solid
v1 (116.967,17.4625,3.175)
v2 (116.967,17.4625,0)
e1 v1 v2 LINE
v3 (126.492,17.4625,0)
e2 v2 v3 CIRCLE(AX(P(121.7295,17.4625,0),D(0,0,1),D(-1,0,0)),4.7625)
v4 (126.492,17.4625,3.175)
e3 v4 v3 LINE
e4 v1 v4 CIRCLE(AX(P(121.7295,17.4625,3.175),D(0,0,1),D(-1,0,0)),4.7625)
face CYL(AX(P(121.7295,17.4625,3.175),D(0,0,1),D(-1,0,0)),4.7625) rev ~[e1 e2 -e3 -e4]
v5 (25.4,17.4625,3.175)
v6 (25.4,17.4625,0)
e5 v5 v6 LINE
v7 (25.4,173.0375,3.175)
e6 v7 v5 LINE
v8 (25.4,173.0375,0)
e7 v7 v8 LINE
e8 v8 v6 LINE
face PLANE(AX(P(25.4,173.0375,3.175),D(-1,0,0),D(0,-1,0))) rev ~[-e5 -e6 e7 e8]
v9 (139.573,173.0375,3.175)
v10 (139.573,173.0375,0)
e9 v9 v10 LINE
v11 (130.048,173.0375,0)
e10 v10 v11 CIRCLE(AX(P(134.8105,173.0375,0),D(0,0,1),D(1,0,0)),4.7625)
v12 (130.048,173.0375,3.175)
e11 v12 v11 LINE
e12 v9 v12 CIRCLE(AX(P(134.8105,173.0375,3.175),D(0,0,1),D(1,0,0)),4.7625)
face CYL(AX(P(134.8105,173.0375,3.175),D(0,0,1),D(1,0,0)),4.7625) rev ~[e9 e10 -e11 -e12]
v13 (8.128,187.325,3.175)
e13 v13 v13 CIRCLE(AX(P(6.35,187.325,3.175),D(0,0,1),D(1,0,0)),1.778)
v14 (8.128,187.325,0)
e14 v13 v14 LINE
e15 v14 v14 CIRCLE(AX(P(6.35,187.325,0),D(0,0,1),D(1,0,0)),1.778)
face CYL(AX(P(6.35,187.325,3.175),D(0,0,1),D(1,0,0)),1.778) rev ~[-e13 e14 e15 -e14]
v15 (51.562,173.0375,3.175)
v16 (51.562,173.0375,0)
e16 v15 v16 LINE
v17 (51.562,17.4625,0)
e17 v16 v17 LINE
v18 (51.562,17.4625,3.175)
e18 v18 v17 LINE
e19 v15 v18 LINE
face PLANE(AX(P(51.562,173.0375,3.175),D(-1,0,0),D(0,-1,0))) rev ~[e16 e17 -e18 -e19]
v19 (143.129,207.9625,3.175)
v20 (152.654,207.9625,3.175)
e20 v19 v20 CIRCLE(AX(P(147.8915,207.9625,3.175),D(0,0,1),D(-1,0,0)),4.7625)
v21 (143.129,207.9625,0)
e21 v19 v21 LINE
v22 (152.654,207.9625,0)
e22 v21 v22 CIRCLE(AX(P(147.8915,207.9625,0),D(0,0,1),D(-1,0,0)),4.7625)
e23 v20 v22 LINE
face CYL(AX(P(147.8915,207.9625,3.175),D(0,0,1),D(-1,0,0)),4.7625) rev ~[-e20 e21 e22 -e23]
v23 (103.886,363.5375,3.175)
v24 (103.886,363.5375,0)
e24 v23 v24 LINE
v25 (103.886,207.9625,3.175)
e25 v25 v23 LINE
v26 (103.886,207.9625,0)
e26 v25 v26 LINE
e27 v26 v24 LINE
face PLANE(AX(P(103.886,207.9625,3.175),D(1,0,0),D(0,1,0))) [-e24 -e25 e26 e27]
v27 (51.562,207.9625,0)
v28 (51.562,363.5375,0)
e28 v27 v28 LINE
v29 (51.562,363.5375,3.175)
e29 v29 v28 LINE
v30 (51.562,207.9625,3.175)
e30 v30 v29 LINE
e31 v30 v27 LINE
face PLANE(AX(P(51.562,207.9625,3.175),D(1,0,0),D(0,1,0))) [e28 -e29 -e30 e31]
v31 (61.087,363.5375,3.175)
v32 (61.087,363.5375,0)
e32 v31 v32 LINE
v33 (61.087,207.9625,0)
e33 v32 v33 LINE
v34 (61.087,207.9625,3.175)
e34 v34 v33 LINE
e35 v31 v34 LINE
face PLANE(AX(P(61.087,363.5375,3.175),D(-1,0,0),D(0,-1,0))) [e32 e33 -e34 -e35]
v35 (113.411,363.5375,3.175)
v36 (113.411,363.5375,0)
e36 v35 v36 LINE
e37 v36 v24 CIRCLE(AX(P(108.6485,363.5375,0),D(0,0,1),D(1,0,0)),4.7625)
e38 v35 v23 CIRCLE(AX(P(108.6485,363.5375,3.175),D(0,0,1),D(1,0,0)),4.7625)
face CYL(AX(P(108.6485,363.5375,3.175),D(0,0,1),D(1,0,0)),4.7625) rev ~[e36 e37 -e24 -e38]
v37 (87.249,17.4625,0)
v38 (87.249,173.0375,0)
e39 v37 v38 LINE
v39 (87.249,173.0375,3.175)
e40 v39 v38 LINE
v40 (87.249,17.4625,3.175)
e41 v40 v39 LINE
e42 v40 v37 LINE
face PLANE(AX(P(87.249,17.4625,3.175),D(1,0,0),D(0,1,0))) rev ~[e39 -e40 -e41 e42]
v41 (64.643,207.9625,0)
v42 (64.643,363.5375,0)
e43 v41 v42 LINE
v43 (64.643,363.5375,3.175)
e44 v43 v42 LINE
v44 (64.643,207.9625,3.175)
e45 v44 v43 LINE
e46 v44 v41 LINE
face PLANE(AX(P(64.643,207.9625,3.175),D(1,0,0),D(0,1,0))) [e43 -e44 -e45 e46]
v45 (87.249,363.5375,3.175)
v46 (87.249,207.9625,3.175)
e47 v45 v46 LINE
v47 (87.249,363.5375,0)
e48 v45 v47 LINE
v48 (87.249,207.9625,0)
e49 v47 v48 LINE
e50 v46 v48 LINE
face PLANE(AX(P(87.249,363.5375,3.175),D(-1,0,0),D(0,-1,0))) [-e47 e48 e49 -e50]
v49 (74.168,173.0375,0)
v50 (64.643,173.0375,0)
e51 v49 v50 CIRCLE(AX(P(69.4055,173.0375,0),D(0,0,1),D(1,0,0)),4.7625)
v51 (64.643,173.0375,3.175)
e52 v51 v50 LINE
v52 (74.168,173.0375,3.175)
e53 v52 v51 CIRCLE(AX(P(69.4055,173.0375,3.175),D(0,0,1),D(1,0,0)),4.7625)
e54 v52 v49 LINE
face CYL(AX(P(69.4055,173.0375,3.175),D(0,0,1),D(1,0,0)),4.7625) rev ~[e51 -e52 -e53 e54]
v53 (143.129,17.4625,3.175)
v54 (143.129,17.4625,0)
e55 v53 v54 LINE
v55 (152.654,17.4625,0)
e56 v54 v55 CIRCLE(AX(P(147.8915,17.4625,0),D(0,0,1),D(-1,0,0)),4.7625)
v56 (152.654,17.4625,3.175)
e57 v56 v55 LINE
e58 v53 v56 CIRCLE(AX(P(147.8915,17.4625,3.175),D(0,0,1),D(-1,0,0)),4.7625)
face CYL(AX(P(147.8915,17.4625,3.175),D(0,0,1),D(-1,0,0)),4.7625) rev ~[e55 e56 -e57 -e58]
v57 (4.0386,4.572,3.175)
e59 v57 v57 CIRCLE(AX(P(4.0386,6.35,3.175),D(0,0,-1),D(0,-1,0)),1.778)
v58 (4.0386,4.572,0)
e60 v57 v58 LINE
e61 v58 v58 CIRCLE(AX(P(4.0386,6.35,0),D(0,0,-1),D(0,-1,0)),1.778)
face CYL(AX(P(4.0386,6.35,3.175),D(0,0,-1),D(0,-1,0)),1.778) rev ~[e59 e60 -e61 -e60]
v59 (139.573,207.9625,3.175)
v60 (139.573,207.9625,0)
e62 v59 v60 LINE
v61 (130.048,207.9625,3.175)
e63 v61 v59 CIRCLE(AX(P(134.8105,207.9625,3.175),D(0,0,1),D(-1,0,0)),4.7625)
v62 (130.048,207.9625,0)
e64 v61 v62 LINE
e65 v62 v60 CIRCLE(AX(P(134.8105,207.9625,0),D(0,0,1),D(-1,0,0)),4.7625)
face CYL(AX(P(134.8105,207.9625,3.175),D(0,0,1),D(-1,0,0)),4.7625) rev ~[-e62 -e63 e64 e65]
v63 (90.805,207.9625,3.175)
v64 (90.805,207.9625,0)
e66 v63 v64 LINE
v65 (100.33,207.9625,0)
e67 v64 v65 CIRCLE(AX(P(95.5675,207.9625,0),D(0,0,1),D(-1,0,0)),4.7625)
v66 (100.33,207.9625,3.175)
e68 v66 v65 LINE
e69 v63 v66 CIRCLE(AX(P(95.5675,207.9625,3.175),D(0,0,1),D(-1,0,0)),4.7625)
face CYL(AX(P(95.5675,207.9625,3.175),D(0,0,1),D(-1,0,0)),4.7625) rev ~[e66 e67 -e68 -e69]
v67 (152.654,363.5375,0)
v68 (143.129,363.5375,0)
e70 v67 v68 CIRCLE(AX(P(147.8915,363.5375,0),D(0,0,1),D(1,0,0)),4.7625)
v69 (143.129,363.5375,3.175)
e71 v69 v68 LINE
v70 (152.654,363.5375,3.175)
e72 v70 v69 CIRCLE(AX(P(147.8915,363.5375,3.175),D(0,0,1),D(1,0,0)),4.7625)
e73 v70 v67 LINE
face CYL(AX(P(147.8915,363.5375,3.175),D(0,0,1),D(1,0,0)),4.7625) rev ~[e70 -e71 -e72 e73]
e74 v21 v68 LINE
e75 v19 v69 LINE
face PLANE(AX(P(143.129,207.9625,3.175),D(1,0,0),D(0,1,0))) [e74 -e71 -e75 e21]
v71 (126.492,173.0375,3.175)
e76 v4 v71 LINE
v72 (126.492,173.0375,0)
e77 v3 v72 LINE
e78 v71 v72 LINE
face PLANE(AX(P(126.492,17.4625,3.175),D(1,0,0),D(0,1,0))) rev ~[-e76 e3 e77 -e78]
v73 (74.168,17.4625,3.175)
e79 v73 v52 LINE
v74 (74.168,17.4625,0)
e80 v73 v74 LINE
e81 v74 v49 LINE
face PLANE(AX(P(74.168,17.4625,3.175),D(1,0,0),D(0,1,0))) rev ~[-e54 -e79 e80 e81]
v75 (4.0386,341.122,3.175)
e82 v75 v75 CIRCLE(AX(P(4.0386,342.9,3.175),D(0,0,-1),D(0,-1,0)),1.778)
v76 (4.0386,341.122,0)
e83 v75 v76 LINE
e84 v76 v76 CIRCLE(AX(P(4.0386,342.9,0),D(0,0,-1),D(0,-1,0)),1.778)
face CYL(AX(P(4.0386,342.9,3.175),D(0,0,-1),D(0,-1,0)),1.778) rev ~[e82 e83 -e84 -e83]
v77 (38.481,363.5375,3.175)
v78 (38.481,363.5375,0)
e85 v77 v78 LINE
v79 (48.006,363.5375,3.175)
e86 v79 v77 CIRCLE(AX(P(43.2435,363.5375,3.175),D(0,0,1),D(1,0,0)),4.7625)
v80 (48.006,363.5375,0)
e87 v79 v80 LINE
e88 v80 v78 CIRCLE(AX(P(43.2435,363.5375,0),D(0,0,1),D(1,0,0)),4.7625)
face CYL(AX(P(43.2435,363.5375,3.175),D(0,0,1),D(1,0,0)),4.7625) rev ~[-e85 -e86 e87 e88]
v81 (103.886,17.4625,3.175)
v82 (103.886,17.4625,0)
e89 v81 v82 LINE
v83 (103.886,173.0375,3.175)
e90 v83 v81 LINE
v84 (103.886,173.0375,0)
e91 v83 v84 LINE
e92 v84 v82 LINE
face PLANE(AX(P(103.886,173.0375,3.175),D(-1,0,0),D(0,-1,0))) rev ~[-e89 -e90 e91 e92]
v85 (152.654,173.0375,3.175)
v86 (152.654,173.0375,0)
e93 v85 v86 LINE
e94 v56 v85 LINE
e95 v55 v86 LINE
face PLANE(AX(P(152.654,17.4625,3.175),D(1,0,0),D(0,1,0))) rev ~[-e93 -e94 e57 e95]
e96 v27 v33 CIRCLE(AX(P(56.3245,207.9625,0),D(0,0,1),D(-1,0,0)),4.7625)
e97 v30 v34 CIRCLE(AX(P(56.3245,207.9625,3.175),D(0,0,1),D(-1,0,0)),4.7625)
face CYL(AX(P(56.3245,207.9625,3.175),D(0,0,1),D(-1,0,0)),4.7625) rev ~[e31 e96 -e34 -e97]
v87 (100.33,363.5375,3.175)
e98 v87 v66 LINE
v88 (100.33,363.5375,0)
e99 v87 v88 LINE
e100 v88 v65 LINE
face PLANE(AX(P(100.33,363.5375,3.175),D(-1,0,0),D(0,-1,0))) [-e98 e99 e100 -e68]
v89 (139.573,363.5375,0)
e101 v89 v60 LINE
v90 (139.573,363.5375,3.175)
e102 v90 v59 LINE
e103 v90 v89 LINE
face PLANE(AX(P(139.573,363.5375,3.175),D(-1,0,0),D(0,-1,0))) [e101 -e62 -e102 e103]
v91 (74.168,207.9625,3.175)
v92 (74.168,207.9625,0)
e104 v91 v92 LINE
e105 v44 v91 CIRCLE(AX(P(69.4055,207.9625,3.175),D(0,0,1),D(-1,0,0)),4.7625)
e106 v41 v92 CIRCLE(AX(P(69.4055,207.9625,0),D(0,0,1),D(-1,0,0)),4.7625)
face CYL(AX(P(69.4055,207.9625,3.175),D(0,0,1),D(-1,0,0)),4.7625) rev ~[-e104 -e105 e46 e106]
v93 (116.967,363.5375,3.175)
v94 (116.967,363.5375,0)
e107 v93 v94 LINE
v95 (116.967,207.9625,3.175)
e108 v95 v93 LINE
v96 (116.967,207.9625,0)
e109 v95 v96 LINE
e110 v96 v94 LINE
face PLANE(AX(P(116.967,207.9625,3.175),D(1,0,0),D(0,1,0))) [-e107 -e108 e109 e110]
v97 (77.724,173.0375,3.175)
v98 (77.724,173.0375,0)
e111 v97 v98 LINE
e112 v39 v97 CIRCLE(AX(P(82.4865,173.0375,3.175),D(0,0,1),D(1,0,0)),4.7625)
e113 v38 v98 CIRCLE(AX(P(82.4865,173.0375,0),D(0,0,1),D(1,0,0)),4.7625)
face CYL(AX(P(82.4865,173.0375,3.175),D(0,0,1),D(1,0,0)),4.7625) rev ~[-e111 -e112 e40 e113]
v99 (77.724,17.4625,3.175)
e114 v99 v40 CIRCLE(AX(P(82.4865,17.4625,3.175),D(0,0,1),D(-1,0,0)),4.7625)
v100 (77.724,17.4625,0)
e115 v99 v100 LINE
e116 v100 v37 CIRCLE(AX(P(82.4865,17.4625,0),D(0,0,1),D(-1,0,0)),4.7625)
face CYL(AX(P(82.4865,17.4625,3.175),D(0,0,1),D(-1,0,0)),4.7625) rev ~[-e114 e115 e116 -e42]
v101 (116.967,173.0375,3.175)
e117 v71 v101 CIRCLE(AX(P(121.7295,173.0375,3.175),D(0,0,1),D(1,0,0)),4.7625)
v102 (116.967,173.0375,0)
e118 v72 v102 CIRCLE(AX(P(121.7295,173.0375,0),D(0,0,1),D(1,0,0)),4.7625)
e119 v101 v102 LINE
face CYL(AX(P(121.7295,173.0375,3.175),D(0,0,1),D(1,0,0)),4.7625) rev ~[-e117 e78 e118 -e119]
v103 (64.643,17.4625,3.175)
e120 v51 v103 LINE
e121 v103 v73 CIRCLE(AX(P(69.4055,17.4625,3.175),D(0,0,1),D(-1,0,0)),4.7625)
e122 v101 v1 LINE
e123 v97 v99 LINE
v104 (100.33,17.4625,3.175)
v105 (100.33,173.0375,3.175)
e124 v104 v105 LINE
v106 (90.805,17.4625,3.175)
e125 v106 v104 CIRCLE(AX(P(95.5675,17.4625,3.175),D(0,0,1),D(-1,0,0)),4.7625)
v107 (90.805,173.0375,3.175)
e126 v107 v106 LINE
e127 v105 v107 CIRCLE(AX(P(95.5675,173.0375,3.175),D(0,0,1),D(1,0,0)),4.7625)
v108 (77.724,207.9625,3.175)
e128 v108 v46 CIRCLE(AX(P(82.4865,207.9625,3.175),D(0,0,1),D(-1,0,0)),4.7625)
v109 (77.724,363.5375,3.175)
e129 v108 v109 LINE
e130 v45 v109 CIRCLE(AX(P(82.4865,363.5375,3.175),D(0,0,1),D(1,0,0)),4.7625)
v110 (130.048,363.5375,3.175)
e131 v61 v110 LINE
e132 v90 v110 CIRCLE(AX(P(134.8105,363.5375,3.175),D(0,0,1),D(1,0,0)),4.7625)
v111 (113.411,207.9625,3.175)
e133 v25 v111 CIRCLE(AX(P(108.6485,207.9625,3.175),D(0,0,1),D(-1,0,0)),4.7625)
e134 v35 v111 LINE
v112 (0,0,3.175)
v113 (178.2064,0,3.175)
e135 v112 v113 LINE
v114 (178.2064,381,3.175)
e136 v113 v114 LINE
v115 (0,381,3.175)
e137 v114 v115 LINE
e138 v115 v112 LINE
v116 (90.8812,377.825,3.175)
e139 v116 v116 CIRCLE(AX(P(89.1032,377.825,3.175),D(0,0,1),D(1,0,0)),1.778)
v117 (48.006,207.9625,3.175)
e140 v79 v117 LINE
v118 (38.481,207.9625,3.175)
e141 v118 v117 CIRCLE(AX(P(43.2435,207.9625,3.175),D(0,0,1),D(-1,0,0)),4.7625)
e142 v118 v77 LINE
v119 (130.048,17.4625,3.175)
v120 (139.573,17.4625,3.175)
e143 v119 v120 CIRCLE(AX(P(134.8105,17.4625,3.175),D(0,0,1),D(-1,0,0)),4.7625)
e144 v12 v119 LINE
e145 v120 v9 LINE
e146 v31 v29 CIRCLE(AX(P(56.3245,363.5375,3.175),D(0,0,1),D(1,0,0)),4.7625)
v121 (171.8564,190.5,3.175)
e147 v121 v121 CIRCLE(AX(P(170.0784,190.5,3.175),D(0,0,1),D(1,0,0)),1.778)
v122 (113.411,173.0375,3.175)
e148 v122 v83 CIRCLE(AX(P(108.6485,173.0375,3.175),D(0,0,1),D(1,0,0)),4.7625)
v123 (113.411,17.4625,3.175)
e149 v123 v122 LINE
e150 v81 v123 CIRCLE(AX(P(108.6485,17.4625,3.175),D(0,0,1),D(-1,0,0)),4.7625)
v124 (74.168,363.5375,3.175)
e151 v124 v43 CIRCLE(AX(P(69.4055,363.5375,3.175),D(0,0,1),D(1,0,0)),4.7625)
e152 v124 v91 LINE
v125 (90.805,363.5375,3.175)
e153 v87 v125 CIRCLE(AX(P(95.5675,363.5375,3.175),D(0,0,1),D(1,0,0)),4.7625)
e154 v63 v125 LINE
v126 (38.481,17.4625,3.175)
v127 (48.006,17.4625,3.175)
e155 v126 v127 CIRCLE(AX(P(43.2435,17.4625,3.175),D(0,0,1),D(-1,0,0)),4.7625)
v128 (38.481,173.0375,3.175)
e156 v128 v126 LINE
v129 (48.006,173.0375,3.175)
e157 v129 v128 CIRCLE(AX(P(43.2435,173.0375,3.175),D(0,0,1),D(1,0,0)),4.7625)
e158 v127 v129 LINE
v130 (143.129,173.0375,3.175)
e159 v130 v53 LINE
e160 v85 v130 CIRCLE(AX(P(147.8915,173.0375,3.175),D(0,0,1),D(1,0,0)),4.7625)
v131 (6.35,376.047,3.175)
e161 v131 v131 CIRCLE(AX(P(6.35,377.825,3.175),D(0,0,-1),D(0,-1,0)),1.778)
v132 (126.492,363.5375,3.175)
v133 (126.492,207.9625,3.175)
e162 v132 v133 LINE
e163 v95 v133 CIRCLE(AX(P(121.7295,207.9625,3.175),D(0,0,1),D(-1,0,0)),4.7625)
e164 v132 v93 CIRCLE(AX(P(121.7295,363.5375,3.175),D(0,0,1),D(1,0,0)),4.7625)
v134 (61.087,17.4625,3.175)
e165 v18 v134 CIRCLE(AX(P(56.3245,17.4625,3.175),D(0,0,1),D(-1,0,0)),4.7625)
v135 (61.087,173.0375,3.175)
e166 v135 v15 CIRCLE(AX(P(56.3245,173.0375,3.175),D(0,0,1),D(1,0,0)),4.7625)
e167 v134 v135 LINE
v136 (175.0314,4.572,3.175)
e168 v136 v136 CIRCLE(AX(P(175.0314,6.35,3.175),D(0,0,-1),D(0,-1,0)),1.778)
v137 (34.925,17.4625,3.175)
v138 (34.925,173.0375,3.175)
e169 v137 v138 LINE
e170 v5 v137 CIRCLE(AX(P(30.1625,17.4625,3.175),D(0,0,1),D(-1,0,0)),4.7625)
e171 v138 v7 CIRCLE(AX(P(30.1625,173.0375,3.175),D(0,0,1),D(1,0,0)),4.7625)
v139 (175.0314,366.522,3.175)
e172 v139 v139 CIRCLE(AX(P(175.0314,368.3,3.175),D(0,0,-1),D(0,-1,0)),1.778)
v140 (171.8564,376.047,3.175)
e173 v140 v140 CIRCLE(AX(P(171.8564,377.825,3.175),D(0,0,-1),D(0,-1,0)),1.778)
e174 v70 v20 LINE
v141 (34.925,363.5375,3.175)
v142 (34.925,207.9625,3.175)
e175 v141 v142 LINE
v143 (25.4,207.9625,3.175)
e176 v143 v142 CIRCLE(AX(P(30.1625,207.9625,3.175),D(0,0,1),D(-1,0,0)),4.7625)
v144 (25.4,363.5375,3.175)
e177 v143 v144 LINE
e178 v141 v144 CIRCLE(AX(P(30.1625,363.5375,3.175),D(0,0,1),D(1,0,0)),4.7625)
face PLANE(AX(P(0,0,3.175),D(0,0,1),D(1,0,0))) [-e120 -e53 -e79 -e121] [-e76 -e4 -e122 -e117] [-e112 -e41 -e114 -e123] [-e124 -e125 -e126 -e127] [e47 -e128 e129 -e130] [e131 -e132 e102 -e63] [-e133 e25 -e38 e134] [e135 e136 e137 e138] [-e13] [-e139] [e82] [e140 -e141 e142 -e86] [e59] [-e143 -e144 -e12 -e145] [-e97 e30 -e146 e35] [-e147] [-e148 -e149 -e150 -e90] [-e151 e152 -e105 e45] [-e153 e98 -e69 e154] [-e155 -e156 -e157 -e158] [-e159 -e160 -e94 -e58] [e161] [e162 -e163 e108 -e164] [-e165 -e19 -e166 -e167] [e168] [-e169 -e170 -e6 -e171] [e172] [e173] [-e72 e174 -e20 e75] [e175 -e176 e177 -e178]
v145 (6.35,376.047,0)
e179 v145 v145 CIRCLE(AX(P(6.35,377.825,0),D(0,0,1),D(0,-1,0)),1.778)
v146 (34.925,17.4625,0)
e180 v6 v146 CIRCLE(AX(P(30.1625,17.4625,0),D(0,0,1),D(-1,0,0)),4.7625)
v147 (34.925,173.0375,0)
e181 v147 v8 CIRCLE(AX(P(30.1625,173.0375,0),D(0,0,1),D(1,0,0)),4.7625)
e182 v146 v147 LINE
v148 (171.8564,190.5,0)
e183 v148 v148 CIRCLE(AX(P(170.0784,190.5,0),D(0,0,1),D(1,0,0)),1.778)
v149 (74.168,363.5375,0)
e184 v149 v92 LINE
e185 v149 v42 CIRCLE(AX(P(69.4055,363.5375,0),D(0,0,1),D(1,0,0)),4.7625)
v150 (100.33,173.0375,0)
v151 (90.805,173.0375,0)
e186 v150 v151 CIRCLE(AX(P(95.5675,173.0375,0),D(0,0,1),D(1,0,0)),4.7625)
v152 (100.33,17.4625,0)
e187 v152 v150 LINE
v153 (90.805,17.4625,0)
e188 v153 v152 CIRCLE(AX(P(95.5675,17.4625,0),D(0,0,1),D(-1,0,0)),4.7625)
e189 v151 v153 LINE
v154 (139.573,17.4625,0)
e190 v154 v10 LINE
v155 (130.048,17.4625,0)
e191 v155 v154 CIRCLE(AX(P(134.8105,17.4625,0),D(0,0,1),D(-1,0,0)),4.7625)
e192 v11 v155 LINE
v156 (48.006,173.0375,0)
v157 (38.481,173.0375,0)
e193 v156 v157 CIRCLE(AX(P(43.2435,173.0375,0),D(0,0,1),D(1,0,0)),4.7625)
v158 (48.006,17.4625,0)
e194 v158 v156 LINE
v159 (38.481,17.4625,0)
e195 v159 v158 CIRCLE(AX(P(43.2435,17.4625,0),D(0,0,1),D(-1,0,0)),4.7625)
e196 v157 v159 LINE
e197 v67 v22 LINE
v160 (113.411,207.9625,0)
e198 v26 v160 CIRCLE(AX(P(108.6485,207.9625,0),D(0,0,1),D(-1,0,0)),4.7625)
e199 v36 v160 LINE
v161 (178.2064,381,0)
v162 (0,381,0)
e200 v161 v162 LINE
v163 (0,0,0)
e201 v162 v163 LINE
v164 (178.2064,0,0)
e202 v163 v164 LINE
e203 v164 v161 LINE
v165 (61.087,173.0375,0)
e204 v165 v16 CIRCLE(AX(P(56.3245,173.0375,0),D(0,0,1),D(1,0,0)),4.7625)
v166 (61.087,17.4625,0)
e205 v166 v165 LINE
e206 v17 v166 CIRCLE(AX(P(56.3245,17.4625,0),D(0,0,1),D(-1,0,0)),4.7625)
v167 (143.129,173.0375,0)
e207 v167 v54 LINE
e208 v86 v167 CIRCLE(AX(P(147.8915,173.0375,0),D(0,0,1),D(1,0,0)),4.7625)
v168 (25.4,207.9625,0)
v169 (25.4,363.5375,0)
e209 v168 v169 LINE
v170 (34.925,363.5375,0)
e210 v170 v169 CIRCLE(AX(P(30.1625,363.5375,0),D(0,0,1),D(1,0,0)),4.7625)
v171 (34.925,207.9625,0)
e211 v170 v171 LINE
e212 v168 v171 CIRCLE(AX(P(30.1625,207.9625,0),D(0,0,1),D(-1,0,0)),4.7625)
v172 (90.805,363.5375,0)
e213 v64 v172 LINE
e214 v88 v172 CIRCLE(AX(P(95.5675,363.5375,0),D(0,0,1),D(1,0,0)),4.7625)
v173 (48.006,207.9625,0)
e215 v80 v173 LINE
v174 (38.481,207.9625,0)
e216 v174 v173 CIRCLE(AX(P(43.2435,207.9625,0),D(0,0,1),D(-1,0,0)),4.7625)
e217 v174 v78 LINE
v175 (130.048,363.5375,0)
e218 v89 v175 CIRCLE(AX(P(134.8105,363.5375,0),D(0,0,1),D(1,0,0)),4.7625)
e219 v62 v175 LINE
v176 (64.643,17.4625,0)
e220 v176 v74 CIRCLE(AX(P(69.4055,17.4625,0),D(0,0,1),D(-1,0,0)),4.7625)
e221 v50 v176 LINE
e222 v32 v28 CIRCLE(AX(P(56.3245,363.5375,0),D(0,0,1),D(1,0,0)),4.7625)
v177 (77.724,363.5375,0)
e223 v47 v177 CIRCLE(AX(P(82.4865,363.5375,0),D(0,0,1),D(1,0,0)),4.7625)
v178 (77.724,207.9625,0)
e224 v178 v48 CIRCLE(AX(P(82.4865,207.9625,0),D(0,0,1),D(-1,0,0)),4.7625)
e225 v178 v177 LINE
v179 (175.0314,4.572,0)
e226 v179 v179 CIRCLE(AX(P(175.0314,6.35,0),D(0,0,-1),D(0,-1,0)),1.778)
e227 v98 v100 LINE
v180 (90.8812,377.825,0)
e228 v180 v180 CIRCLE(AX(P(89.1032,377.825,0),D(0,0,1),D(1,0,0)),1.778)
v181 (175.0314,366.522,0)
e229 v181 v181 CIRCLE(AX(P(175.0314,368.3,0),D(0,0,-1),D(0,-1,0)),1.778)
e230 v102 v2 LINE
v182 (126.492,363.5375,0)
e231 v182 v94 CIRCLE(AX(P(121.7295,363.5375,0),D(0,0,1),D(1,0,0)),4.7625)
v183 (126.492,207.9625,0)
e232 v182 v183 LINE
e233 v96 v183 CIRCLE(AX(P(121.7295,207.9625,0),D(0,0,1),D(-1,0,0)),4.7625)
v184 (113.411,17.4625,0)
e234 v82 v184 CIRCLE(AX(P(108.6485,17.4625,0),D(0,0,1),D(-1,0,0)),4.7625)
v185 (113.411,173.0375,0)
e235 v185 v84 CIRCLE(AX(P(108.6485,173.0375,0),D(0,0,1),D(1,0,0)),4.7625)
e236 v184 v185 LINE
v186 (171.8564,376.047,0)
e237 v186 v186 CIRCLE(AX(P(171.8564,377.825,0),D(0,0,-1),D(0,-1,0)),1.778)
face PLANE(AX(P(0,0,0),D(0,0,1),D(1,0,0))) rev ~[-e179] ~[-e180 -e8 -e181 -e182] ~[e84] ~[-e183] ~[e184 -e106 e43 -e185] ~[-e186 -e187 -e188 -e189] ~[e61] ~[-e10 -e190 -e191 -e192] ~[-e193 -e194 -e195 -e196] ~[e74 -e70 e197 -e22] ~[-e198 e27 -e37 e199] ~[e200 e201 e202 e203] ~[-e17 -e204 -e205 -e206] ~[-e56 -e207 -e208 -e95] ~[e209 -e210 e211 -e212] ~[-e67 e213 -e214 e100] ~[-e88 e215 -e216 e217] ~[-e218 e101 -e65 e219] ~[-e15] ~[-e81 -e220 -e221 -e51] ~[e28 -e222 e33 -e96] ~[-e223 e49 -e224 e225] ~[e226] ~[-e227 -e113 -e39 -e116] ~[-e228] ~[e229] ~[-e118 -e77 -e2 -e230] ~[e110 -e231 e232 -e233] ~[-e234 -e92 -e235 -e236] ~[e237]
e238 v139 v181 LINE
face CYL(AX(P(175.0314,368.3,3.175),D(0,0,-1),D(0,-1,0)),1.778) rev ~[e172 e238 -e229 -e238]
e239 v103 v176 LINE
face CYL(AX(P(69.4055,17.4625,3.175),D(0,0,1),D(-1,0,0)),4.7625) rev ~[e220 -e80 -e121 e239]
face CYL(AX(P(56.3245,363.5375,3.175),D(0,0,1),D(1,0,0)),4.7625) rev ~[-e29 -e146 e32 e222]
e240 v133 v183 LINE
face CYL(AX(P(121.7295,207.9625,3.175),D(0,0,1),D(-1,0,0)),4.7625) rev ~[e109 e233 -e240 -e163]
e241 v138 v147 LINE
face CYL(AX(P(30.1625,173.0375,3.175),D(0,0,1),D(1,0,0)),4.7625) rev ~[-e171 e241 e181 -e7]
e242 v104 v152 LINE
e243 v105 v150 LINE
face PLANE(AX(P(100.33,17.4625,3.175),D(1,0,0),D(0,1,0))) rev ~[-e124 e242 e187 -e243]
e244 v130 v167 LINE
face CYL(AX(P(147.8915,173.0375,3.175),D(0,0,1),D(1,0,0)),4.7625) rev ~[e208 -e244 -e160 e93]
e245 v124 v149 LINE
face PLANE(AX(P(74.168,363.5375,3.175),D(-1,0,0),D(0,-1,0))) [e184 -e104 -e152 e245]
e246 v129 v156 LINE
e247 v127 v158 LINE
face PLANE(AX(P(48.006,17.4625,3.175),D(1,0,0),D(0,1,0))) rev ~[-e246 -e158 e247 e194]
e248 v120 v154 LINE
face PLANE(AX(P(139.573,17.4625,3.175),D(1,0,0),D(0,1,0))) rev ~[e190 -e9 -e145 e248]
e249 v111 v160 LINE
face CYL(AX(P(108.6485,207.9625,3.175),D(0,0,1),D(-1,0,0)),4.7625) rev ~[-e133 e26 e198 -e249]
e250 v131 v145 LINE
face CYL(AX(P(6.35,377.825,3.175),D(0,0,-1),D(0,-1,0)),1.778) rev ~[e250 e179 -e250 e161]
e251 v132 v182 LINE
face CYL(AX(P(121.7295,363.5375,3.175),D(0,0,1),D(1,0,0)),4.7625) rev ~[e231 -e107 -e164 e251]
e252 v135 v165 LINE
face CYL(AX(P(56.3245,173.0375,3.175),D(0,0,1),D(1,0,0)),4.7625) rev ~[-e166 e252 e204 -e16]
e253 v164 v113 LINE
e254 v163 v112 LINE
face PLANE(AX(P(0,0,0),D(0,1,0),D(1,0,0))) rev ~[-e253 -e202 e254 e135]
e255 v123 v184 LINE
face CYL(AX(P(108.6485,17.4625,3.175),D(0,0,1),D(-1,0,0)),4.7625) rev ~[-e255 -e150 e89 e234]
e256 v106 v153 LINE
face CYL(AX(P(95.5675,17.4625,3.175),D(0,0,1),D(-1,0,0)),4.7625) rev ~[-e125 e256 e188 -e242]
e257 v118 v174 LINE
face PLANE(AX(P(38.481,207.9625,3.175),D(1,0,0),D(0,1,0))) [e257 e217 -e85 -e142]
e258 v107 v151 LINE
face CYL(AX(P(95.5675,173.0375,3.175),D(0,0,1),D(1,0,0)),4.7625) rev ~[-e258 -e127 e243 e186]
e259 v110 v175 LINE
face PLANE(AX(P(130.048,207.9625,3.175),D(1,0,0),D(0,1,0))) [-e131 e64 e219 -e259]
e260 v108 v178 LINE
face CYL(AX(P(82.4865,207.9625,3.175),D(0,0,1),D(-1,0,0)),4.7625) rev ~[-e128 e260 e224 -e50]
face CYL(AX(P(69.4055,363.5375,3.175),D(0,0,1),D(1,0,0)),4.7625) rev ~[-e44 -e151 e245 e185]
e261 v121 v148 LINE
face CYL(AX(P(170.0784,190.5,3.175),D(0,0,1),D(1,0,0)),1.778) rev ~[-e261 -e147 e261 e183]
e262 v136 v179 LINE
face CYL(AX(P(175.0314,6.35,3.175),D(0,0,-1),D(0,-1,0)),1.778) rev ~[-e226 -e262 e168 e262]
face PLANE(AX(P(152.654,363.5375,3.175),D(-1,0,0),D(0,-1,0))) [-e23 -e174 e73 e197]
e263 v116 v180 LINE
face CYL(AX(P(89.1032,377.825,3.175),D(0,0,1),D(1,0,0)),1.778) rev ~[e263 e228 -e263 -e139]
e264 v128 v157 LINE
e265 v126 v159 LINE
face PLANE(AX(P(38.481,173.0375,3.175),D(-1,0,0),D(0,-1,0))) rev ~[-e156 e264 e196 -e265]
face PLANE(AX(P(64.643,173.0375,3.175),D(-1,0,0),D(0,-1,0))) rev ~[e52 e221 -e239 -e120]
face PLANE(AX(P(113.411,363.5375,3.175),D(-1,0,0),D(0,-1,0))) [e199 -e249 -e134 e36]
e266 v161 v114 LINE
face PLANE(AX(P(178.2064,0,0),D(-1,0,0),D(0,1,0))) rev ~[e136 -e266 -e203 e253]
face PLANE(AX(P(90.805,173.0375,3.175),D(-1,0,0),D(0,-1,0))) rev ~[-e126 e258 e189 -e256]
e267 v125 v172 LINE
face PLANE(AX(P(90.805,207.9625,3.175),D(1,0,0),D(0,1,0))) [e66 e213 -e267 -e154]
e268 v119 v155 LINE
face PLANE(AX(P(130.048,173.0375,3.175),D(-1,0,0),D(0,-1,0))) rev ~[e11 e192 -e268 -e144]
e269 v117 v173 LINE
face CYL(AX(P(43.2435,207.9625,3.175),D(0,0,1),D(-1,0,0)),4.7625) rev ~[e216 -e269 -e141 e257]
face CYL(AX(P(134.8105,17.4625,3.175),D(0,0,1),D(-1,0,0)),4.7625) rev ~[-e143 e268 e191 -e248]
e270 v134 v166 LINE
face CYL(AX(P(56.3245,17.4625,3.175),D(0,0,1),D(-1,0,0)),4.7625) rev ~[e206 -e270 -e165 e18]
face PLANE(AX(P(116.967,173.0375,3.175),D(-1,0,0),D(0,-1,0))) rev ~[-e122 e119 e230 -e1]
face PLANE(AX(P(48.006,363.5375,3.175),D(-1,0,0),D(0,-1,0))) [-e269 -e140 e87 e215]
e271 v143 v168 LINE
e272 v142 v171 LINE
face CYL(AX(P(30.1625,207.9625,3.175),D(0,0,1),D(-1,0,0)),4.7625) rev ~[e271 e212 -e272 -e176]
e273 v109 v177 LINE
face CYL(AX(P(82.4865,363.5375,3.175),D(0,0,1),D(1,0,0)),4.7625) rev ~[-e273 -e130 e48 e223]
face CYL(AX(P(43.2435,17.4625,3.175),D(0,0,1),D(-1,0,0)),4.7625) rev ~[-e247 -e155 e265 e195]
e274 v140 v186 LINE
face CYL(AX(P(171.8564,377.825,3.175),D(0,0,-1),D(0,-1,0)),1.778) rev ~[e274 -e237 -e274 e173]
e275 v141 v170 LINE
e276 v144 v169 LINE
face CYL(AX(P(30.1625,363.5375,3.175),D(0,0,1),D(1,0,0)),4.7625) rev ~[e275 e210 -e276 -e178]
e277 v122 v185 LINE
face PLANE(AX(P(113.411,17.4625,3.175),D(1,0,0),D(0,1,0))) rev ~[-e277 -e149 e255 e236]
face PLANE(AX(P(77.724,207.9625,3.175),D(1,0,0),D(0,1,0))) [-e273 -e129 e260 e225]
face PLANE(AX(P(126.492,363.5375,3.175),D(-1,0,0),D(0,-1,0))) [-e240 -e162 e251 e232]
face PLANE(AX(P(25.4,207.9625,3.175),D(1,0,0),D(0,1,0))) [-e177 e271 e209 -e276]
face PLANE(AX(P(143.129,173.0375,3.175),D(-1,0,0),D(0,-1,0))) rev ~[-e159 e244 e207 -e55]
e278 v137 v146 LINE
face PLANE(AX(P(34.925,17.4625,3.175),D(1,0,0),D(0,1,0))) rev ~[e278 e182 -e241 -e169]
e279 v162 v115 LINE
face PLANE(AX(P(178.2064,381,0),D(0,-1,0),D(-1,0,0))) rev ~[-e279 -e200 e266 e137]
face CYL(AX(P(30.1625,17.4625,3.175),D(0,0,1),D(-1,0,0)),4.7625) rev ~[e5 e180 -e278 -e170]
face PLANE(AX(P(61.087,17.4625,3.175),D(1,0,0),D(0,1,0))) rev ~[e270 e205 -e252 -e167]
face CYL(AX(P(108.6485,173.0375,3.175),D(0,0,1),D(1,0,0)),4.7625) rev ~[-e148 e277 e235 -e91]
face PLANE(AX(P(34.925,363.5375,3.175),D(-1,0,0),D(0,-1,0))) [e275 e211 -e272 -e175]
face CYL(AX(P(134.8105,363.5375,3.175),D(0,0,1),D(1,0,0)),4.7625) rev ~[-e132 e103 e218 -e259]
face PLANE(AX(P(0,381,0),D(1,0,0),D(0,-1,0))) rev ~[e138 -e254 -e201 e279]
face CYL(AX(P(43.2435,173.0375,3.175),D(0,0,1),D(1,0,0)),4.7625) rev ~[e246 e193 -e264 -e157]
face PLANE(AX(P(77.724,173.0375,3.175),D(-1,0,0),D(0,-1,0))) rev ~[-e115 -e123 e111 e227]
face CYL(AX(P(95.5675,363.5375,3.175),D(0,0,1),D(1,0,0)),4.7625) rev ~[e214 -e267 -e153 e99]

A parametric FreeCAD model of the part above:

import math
import FreeCAD as App
import Part
import Sketcher
from FreeCAD import Vector
Q = App.Units.Quantity

doc = App.newDocument("Part")
body = doc.addObject("PartDesign::Body", "Body")

# Sketch on XY plane
sketch1 = doc.addObject("Sketcher::SketchObject", "Sketch")
body.addObject(sketch1)
sketch1.AttachmentSupport = (doc.XY_Plane, [""])
sketch1.MapMode = "FlatFace"
sketch1.addGeometry([
    Part.LineSegment(Vector(0, 381, 0), Vector(0, 0, 0)),
    Part.LineSegment(Vector(0, 0, 0), Vector(178, 0, 0)),
    Part.LineSegment(Vector(178, 0, 0), Vector(178, 381, 0)),
    Part.LineSegment(Vector(178, 381, 0), Vector(0, 381, 0)),
], False)
sketch1.addConstraint([
    Sketcher.Constraint("Coincident", 0, 2, 1, 1),
    Sketcher.Constraint("Coincident", 1, 2, 2, 1),
    Sketcher.Constraint("Coincident", 2, 2, 3, 1),
    Sketcher.Constraint("Coincident", 3, 2, 0, 1),
    Sketcher.Constraint("Vertical", 0),
    Sketcher.Constraint("Horizontal", 1),
    Sketcher.Constraint("Vertical", 2),
    Sketcher.Constraint("Horizontal", 3),
    Sketcher.Constraint("Coincident", 0, 2, -1, 1),
    Sketcher.Constraint("DistanceY", 0, 2, 0, 1, Q("15 in")),
    Sketcher.Constraint("DistanceX", 1, 1, 1, 2, Q("7.016 in")),
])
pad1 = doc.addObject("PartDesign::Pad", "Pad")
body.addObject(pad1)
pad1.Profile = sketch1
pad1.Length = Q("0.125 in")

# Sketch on XY plane
sketch2 = doc.addObject("Sketcher::SketchObject", "Sketch001")
body.addObject(sketch2)
sketch2.AttachmentSupport = (doc.XY_Plane, [""])
sketch2.MapMode = "FlatFace"
sketch2.AttachmentOffset = App.Placement(Vector(0, 0, 0.125 * 25.4), App.Rotation())
sketch2.addGeometry([
    Part.Circle(Vector(4, 6.3, 0), Vector(0, 0, 1), 1.8),  # 0
    Part.Circle(Vector(4, 342.9, 0), Vector(0, 0, 1), 1.8),  # 1
    Part.Circle(Vector(6.3, 377.8, 0), Vector(0, 0, 1), 1.8),  # 2
    Part.Circle(Vector(175, 6.3, 0), Vector(0, 0, 1), 1.8),  # 3
    Part.Circle(Vector(175, 368.3, 0), Vector(0, 0, 1), 1.8),  # 4
    Part.Circle(Vector(171.9, 377.8, 0), Vector(0, 0, 1), 1.8),  # 5
], False)
sketch2.addConstraint([
    Sketcher.Constraint("Equal", 0, 1),
    Sketcher.Constraint("Equal", 1, 2),
    Sketcher.Constraint("Equal", 2, 3),
    Sketcher.Constraint("Equal", 3, 4),
    Sketcher.Constraint("Equal", 4, 5),
    Sketcher.Constraint("Horizontal", 0, 3, 3, 3),
    Sketcher.Constraint("Horizontal", 2, 3, 5, 3),
    Sketcher.Constraint("Vertical", 0, 3, 1, 3),
    Sketcher.Constraint("Vertical", 3, 3, 4, 3),
    Sketcher.Constraint("Diameter", 0, Q("0.14 in")),
    Sketcher.Constraint("DistanceY", 1, 3, 4, 3, Q("1 in")),
    Sketcher.Constraint("DistanceY", -1, 1, 1, 3, Q("13.5 in")),
    Sketcher.Constraint("DistanceY", -1, 1, 0, 3, Q("0.25 in")),
    Sketcher.Constraint("DistanceX", -1, 1, 2, 3, Q("0.25 in")),
    Sketcher.Constraint("DistanceX", -1, 1, 0, 3, Q("0.159 in")),
    Sketcher.Constraint("DistanceY", -1, 1, 2, 3, Q("14.875 in")),
    Sketcher.Constraint("DistanceX", -1, 1, 3, 3, Q("6.891 in")),
    Sketcher.Constraint("DistanceX", -1, 1, 5, 3, Q("6.766 in")),
])
doc.recompute()
hole = doc.addObject("PartDesign::Hole", "Hole")
body.addObject(hole)
hole.Profile = sketch2
hole.ThreadType = "None"
hole.Diameter = Q("0.14 in")
hole.DepthType = "Dimension"
hole.Depth = Q("1 in")
hole.DrillPoint = "Angled"
hole.DrillPointAngle = 118

# Sketch on XY plane
sketch3 = doc.addObject("Sketcher::SketchObject", "Sketch002")
body.addObject(sketch3)
sketch3.AttachmentSupport = (doc.XY_Plane, [""])
sketch3.MapMode = "FlatFace"
sketch3.AttachmentOffset = App.Placement(Vector(0, 0, 0.125 * 25.4), App.Rotation())
sketch3.addGeometry([
    Part.ArcOfCircle(Part.Circle(Vector(30.2, 17.5, 0), Vector(0, 0, 1), 4.8), math.radians(180), math.radians(360)),  # 0
    Part.LineSegment(Vector(34.9, 17.5, 0), Vector(34.9, 173, 0)),  # 1
    Part.ArcOfCircle(Part.Circle(Vector(30.2, 173, 0), Vector(0, 0, 1), 4.8), math.radians(0), math.radians(180)),  # 2
    Part.LineSegment(Vector(25.4, 173, 0), Vector(25.4, 17.5, 0)),  # 3
    Part.ArcOfCircle(Part.Circle(Vector(43.2, 17.5, 0), Vector(0, 0, 1), 4.8), math.radians(180), math.radians(360)),  # 4
    Part.LineSegment(Vector(48, 17.5, 0), Vector(48, 173, 0)),  # 5
    Part.ArcOfCircle(Part.Circle(Vector(43.2, 173, 0), Vector(0, 0, 1), 4.8), math.radians(0), math.radians(180)),  # 6
    Part.LineSegment(Vector(38.5, 173, 0), Vector(38.5, 17.5, 0)),  # 7
    Part.ArcOfCircle(Part.Circle(Vector(56.3, 17.5, 0), Vector(0, 0, 1), 4.8), math.radians(180), math.radians(360)),  # 8
    Part.LineSegment(Vector(61.1, 17.5, 0), Vector(61.1, 173, 0)),  # 9
    Part.ArcOfCircle(Part.Circle(Vector(56.3, 173, 0), Vector(0, 0, 1), 4.8), math.radians(0), math.radians(180)),  # 10
    Part.LineSegment(Vector(51.6, 173, 0), Vector(51.6, 17.5, 0)),  # 11
    Part.ArcOfCircle(Part.Circle(Vector(69.4, 17.5, 0), Vector(0, 0, 1), 4.8), math.radians(180), math.radians(360)),  # 12
    Part.LineSegment(Vector(74.2, 17.5, 0), Vector(74.2, 173, 0)),  # 13
    Part.ArcOfCircle(Part.Circle(Vector(69.4, 173, 0), Vector(0, 0, 1), 4.8), math.radians(0), math.radians(180)),  # 14
    Part.LineSegment(Vector(64.6, 173, 0), Vector(64.6, 17.5, 0)),  # 15
    Part.ArcOfCircle(Part.Circle(Vector(82.5, 17.5, 0), Vector(0, 0, 1), 4.8), math.radians(180), math.radians(360)),  # 16
    Part.LineSegment(Vector(87.2, 17.5, 0), Vector(87.2, 173, 0)),  # 17
    Part.ArcOfCircle(Part.Circle(Vector(82.5, 173, 0), Vector(0, 0, 1), 4.8), math.radians(0), math.radians(180)),  # 18
    Part.LineSegment(Vector(77.7, 173, 0), Vector(77.7, 17.5, 0)),  # 19
    Part.ArcOfCircle(Part.Circle(Vector(95.6, 17.5, 0), Vector(0, 0, 1), 4.8), math.radians(180), math.radians(360)),  # 20
    Part.LineSegment(Vector(100.3, 17.5, 0), Vector(100.3, 173, 0)),  # 21
    Part.ArcOfCircle(Part.Circle(Vector(95.6, 173, 0), Vector(0, 0, 1), 4.8), math.radians(0), math.radians(180)),  # 22
    Part.LineSegment(Vector(90.8, 173, 0), Vector(90.8, 17.5, 0)),  # 23
    Part.ArcOfCircle(Part.Circle(Vector(108.6, 17.5, 0), Vector(0, 0, 1), 4.8), math.radians(180), math.radians(360)),  # 24
    Part.LineSegment(Vector(113.4, 17.5, 0), Vector(113.4, 173, 0)),  # 25
    Part.ArcOfCircle(Part.Circle(Vector(108.6, 173, 0), Vector(0, 0, 1), 4.8), math.radians(0), math.radians(180)),  # 26
    Part.LineSegment(Vector(103.9, 173, 0), Vector(103.9, 17.5, 0)),  # 27
    Part.ArcOfCircle(Part.Circle(Vector(121.7, 17.5, 0), Vector(0, 0, 1), 4.8), math.radians(180), math.radians(360)),  # 28
    Part.LineSegment(Vector(126.5, 17.5, 0), Vector(126.5, 173, 0)),  # 29
    Part.ArcOfCircle(Part.Circle(Vector(121.7, 173, 0), Vector(0, 0, 1), 4.8), math.radians(0), math.radians(180)),  # 30
    Part.LineSegment(Vector(117, 173, 0), Vector(117, 17.5, 0)),  # 31
    Part.ArcOfCircle(Part.Circle(Vector(134.8, 17.5, 0), Vector(0, 0, 1), 4.8), math.radians(180), math.radians(360)),  # 32
    Part.LineSegment(Vector(139.6, 17.5, 0), Vector(139.6, 173, 0)),  # 33
    Part.ArcOfCircle(Part.Circle(Vector(134.8, 173, 0), Vector(0, 0, 1), 4.8), math.radians(0), math.radians(180)),  # 34
    Part.LineSegment(Vector(130, 173, 0), Vector(130, 17.5, 0)),  # 35
    Part.LineSegment(Vector(34.9, 208, 0), Vector(34.9, 363.5, 0)),  # 36
    Part.ArcOfCircle(Part.Circle(Vector(30.2, 363.5, 0), Vector(0, 0, 1), 4.8), math.radians(0), math.radians(180)),  # 37
    Part.LineSegment(Vector(25.4, 363.5, 0), Vector(25.4, 208, 0)),  # 38
    Part.ArcOfCircle(Part.Circle(Vector(30.2, 208, 0), Vector(0, 0, 1), 4.8), math.radians(180), math.radians(360)),  # 39
    Part.LineSegment(Vector(38.5, 363.5, 0), Vector(38.5, 208, 0)),  # 40
    Part.ArcOfCircle(Part.Circle(Vector(43.2, 208, 0), Vector(0, 0, 1), 4.8), math.radians(180), math.radians(360)),  # 41
    Part.LineSegment(Vector(48, 208, 0), Vector(48, 363.5, 0)),  # 42
    Part.ArcOfCircle(Part.Circle(Vector(43.2, 363.5, 0), Vector(0, 0, 1), 4.8), math.radians(0), math.radians(180)),  # 43
    Part.LineSegment(Vector(51.6, 363.5, 0), Vector(51.6, 208, 0)),  # 44
    Part.ArcOfCircle(Part.Circle(Vector(56.3, 208, 0), Vector(0, 0, 1), 4.8), math.radians(180), math.radians(360)),  # 45
    Part.LineSegment(Vector(61.1, 208, 0), Vector(61.1, 363.5, 0)),  # 46
    Part.ArcOfCircle(Part.Circle(Vector(56.3, 363.5, 0), Vector(0, 0, 1), 4.8), math.radians(0), math.radians(180)),  # 47
    Part.LineSegment(Vector(64.6, 363.5, 0), Vector(64.6, 208, 0)),  # 48
    Part.ArcOfCircle(Part.Circle(Vector(69.4, 208, 0), Vector(0, 0, 1), 4.8), math.radians(180), math.radians(360)),  # 49
    Part.LineSegment(Vector(74.2, 208, 0), Vector(74.2, 363.5, 0)),  # 50
    Part.ArcOfCircle(Part.Circle(Vector(69.4, 363.5, 0), Vector(0, 0, 1), 4.8), math.radians(0), math.radians(180)),  # 51
    Part.LineSegment(Vector(77.7, 363.5, 0), Vector(77.7, 208, 0)),  # 52
    Part.ArcOfCircle(Part.Circle(Vector(82.5, 208, 0), Vector(0, 0, 1), 4.8), math.radians(180), math.radians(360)),  # 53
    Part.LineSegment(Vector(87.2, 208, 0), Vector(87.2, 363.5, 0)),  # 54
    Part.ArcOfCircle(Part.Circle(Vector(82.5, 363.5, 0), Vector(0, 0, 1), 4.8), math.radians(0), math.radians(180)),  # 55
    Part.LineSegment(Vector(90.8, 363.5, 0), Vector(90.8, 208, 0)),  # 56
    Part.ArcOfCircle(Part.Circle(Vector(95.6, 208, 0), Vector(0, 0, 1), 4.8), math.radians(180), math.radians(360)),  # 57
    Part.LineSegment(Vector(100.3, 208, 0), Vector(100.3, 363.5, 0)),  # 58
    Part.ArcOfCircle(Part.Circle(Vector(95.6, 363.5, 0), Vector(0, 0, 1), 4.8), math.radians(0), math.radians(180)),  # 59
    Part.LineSegment(Vector(103.9, 363.5, 0), Vector(103.9, 208, 0)),  # 60
    Part.ArcOfCircle(Part.Circle(Vector(108.6, 208, 0), Vector(0, 0, 1), 4.8), math.radians(180), math.radians(360)),  # 61
    Part.LineSegment(Vector(113.4, 208, 0), Vector(113.4, 363.5, 0)),  # 62
    Part.ArcOfCircle(Part.Circle(Vector(108.6, 363.5, 0), Vector(0, 0, 1), 4.8), math.radians(0), math.radians(180)),  # 63
    Part.LineSegment(Vector(117, 363.5, 0), Vector(117, 208, 0)),  # 64
    Part.ArcOfCircle(Part.Circle(Vector(121.7, 208, 0), Vector(0, 0, 1), 4.8), math.radians(180), math.radians(360)),  # 65
    Part.LineSegment(Vector(126.5, 208, 0), Vector(126.5, 363.5, 0)),  # 66
    Part.ArcOfCircle(Part.Circle(Vector(121.7, 363.5, 0), Vector(0, 0, 1), 4.8), math.radians(0), math.radians(180)),  # 67
    Part.LineSegment(Vector(130, 363.5, 0), Vector(130, 208, 0)),  # 68
    Part.ArcOfCircle(Part.Circle(Vector(134.8, 208, 0), Vector(0, 0, 1), 4.8), math.radians(180), math.radians(360)),  # 69
    Part.LineSegment(Vector(139.6, 208, 0), Vector(139.6, 363.5, 0)),  # 70
    Part.ArcOfCircle(Part.Circle(Vector(134.8, 363.5, 0), Vector(0, 0, 1), 4.8), math.radians(0), math.radians(180)),  # 71
    Part.ArcOfCircle(Part.Circle(Vector(147.9, 17.5, 0), Vector(0, 0, 1), 4.8), math.radians(180), math.radians(360)),  # 72
    Part.LineSegment(Vector(152.7, 17.5, 0), Vector(152.7, 173, 0)),  # 73
    Part.ArcOfCircle(Part.Circle(Vector(147.9, 173, 0), Vector(0, 0, 1), 4.8), math.radians(0), math.radians(180)),  # 74
    Part.LineSegment(Vector(143.1, 173, 0), Vector(143.1, 17.5, 0)),  # 75
    Part.LineSegment(Vector(143.1, 363.5, 0), Vector(143.1, 208, 0)),  # 76
    Part.ArcOfCircle(Part.Circle(Vector(147.9, 208, 0), Vector(0, 0, 1), 4.8), math.radians(180), math.radians(360)),  # 77
    Part.LineSegment(Vector(152.7, 208, 0), Vector(152.7, 363.5, 0)),  # 78
    Part.ArcOfCircle(Part.Circle(Vector(147.9, 363.5, 0), Vector(0, 0, 1), 4.8), math.radians(0), math.radians(180)),  # 79
], False)
sketch3.addConstraint([
    Sketcher.Constraint("Tangent", 0, 2, 1, 1),
    Sketcher.Constraint("Tangent", 1, 2, 2, 1),
    Sketcher.Constraint("Tangent", 2, 2, 3, 1),
    Sketcher.Constraint("Tangent", 3, 2, 0, 1),
    Sketcher.Constraint("Tangent", 4, 2, 5, 1),
    Sketcher.Constraint("Tangent", 5, 2, 6, 1),
    Sketcher.Constraint("Tangent", 6, 2, 7, 1),
    Sketcher.Constraint("Tangent", 7, 2, 4, 1),
    Sketcher.Constraint("Tangent", 8, 2, 9, 1),
    Sketcher.Constraint("Tangent", 9, 2, 10, 1),
    Sketcher.Constraint("Tangent", 10, 2, 11, 1),
    Sketcher.Constraint("Tangent", 11, 2, 8, 1),
    Sketcher.Constraint("Tangent", 12, 2, 13, 1),
    Sketcher.Constraint("Tangent", 13, 2, 14, 1),
    Sketcher.Constraint("Tangent", 14, 2, 15, 1),
    Sketcher.Constraint("Tangent", 15, 2, 12, 1),
    Sketcher.Constraint("Tangent", 16, 2, 17, 1),
    Sketcher.Constraint("Tangent", 17, 2, 18, 1),
    Sketcher.Constraint("Tangent", 18, 2, 19, 1),
    Sketcher.Constraint("Tangent", 19, 2, 16, 1),
    Sketcher.Constraint("Tangent", 20, 2, 21, 1),
    Sketcher.Constraint("Tangent", 21, 2, 22, 1),
    Sketcher.Constraint("Tangent", 22, 2, 23, 1),
    Sketcher.Constraint("Tangent", 23, 2, 20, 1),
    Sketcher.Constraint("Tangent", 24, 2, 25, 1),
    Sketcher.Constraint("Tangent", 25, 2, 26, 1),
    Sketcher.Constraint("Tangent", 26, 2, 27, 1),
    Sketcher.Constraint("Tangent", 27, 2, 24, 1),
    Sketcher.Constraint("Tangent", 28, 2, 29, 1),
    Sketcher.Constraint("Tangent", 29, 2, 30, 1),
    Sketcher.Constraint("Tangent", 30, 2, 31, 1),
    Sketcher.Constraint("Tangent", 31, 2, 28, 1),
    Sketcher.Constraint("Tangent", 32, 2, 33, 1),
    Sketcher.Constraint("Tangent", 33, 2, 34, 1),
    Sketcher.Constraint("Tangent", 34, 2, 35, 1),
    Sketcher.Constraint("Tangent", 35, 2, 32, 1),
    Sketcher.Constraint("Tangent", 36, 2, 37, 1),
    Sketcher.Constraint("Tangent", 37, 2, 38, 1),
    Sketcher.Constraint("Tangent", 38, 2, 39, 1),
    Sketcher.Constraint("Tangent", 39, 2, 36, 1),
    Sketcher.Constraint("Tangent", 40, 2, 41, 1),
    Sketcher.Constraint("Tangent", 41, 2, 42, 1),
    Sketcher.Constraint("Tangent", 42, 2, 43, 1),
    Sketcher.Constraint("Tangent", 43, 2, 40, 1),
    Sketcher.Constraint("Tangent", 44, 2, 45, 1),
    Sketcher.Constraint("Tangent", 45, 2, 46, 1),
    Sketcher.Constraint("Tangent", 46, 2, 47, 1),
    Sketcher.Constraint("Tangent", 47, 2, 44, 1),
    Sketcher.Constraint("Tangent", 48, 2, 49, 1),
    Sketcher.Constraint("Tangent", 49, 2, 50, 1),
    Sketcher.Constraint("Tangent", 50, 2, 51, 1),
    Sketcher.Constraint("Tangent", 51, 2, 48, 1),
    Sketcher.Constraint("Tangent", 52, 2, 53, 1),
    Sketcher.Constraint("Tangent", 53, 2, 54, 1),
    Sketcher.Constraint("Tangent", 54, 2, 55, 1),
    Sketcher.Constraint("Tangent", 55, 2, 52, 1),
    Sketcher.Constraint("Tangent", 56, 2, 57, 1),
    Sketcher.Constraint("Tangent", 57, 2, 58, 1),
    Sketcher.Constraint("Tangent", 58, 2, 59, 1),
    Sketcher.Constraint("Tangent", 59, 2, 56, 1),
    Sketcher.Constraint("Tangent", 60, 2, 61, 1),
    Sketcher.Constraint("Tangent", 61, 2, 62, 1),
    Sketcher.Constraint("Tangent", 62, 2, 63, 1),
    Sketcher.Constraint("Tangent", 63, 2, 60, 1),
    Sketcher.Constraint("Tangent", 64, 2, 65, 1),
    Sketcher.Constraint("Tangent", 65, 2, 66, 1),
    Sketcher.Constraint("Tangent", 66, 2, 67, 1),
    Sketcher.Constraint("Tangent", 67, 2, 64, 1),
    Sketcher.Constraint("Tangent", 68, 2, 69, 1),
    Sketcher.Constraint("Tangent", 69, 2, 70, 1),
    Sketcher.Constraint("Tangent", 70, 2, 71, 1),
    Sketcher.Constraint("Tangent", 71, 2, 68, 1),
    Sketcher.Constraint("Tangent", 72, 2, 73, 1),
    Sketcher.Constraint("Tangent", 73, 2, 74, 1),
    Sketcher.Constraint("Tangent", 74, 2, 75, 1),
    Sketcher.Constraint("Tangent", 75, 2, 72, 1),
    Sketcher.Constraint("Tangent", 76, 2, 77, 1),
    Sketcher.Constraint("Tangent", 77, 2, 78, 1),
    Sketcher.Constraint("Tangent", 78, 2, 79, 1),
    Sketcher.Constraint("Tangent", 79, 2, 76, 1),
    Sketcher.Constraint("Vertical", 1),
    Sketcher.Constraint("Vertical", 3),
    Sketcher.Constraint("Vertical", 5),
    Sketcher.Constraint("Vertical", 7),
    Sketcher.Constraint("Vertical", 9),
    Sketcher.Constraint("Vertical", 11),
    Sketcher.Constraint("Vertical", 13),
    Sketcher.Constraint("Vertical", 15),
    Sketcher.Constraint("Vertical", 17),
    Sketcher.Constraint("Vertical", 19),
    Sketcher.Constraint("Vertical", 21),
    Sketcher.Constraint("Vertical", 23),
    Sketcher.Constraint("Vertical", 25),
    Sketcher.Constraint("Vertical", 27),
    Sketcher.Constraint("Vertical", 29),
    Sketcher.Constraint("Vertical", 31),
    Sketcher.Constraint("Vertical", 33),
    Sketcher.Constraint("Vertical", 35),
    Sketcher.Constraint("Vertical", 36),
    Sketcher.Constraint("Vertical", 38),
    Sketcher.Constraint("Vertical", 40),
    Sketcher.Constraint("Vertical", 42),
    Sketcher.Constraint("Vertical", 44),
    Sketcher.Constraint("Vertical", 46),
    Sketcher.Constraint("Vertical", 48),
    Sketcher.Constraint("Vertical", 50),
    Sketcher.Constraint("Vertical", 52),
    Sketcher.Constraint("Vertical", 54),
    Sketcher.Constraint("Vertical", 56),
    Sketcher.Constraint("Vertical", 58),
    Sketcher.Constraint("Vertical", 60),
    Sketcher.Constraint("Vertical", 62),
    Sketcher.Constraint("Vertical", 64),
    Sketcher.Constraint("Vertical", 66),
    Sketcher.Constraint("Vertical", 68),
    Sketcher.Constraint("Vertical", 70),
    Sketcher.Constraint("Vertical", 73),
    Sketcher.Constraint("Vertical", 75),
    Sketcher.Constraint("Vertical", 76),
    Sketcher.Constraint("Vertical", 78),
    Sketcher.Constraint("Equal", 2, 4),
    Sketcher.Constraint("Equal", 6, 8),
    Sketcher.Constraint("Equal", 10, 12),
    Sketcher.Constraint("Equal", 14, 16),
    Sketcher.Constraint("Equal", 18, 20),
    Sketcher.Constraint("Equal", 22, 24),
    Sketcher.Constraint("Equal", 26, 28),
    Sketcher.Constraint("Equal", 30, 32),
    Sketcher.Constraint("Equal", 34, 37),
    Sketcher.Constraint("Equal", 39, 41),
    Sketcher.Constraint("Equal", 43, 45),
    Sketcher.Constraint("Equal", 47, 49),
    Sketcher.Constraint("Equal", 51, 53),
    Sketcher.Constraint("Equal", 55, 57),
    Sketcher.Constraint("Equal", 59, 61),
    Sketcher.Constraint("Equal", 63, 65),
    Sketcher.Constraint("Equal", 67, 69),
    Sketcher.Constraint("Equal", 71, 72),
    Sketcher.Constraint("Equal", 74, 77),
    Sketcher.Constraint("Horizontal", 0, 3, 4, 3),
    Sketcher.Constraint("Horizontal", 2, 3, 6, 3),
    Sketcher.Constraint("Horizontal", 4, 3, 8, 3),
    Sketcher.Constraint("Horizontal", 6, 3, 10, 3),
    Sketcher.Constraint("Horizontal", 8, 3, 12, 3),
    Sketcher.Constraint("Horizontal", 10, 3, 14, 3),
    Sketcher.Constraint("Horizontal", 12, 3, 16, 3),
    Sketcher.Constraint("Horizontal", 14, 3, 18, 3),
    Sketcher.Constraint("Horizontal", 16, 3, 20, 3),
    Sketcher.Constraint("Horizontal", 18, 3, 22, 3),
    Sketcher.Constraint("Horizontal", 20, 3, 24, 3),
    Sketcher.Constraint("Horizontal", 22, 3, 26, 3),
    Sketcher.Constraint("Horizontal", 24, 3, 28, 3),
    Sketcher.Constraint("Horizontal", 26, 3, 30, 3),
    Sketcher.Constraint("Horizontal", 28, 3, 32, 3),
    Sketcher.Constraint("Horizontal", 30, 3, 34, 3),
    Sketcher.Constraint("Horizontal", 39, 3, 41, 3),
    Sketcher.Constraint("Horizontal", 37, 3, 43, 3),
    Sketcher.Constraint("Horizontal", 41, 3, 45, 3),
    Sketcher.Constraint("Horizontal", 43, 3, 47, 3),
    Sketcher.Constraint("Horizontal", 45, 3, 49, 3),
    Sketcher.Constraint("Horizontal", 47, 3, 51, 3),
    Sketcher.Constraint("Horizontal", 49, 3, 53, 3),
    Sketcher.Constraint("Horizontal", 51, 3, 55, 3),
    Sketcher.Constraint("Horizontal", 53, 3, 57, 3),
    Sketcher.Constraint("Horizontal", 55, 3, 59, 3),
    Sketcher.Constraint("Horizontal", 57, 3, 61, 3),
    Sketcher.Constraint("Horizontal", 59, 3, 63, 3),
    Sketcher.Constraint("Horizontal", 61, 3, 65, 3),
    Sketcher.Constraint("Horizontal", 63, 3, 67, 3),
    Sketcher.Constraint("Horizontal", 65, 3, 69, 3),
    Sketcher.Constraint("Horizontal", 67, 3, 71, 3),
    Sketcher.Constraint("Horizontal", 32, 3, 72, 3),
    Sketcher.Constraint("Horizontal", 34, 3, 74, 3),
    Sketcher.Constraint("Horizontal", 69, 3, 77, 3),
    Sketcher.Constraint("Horizontal", 71, 3, 79, 3),
    Sketcher.Constraint("Vertical", 2, 3, 37, 3),
    Sketcher.Constraint("Vertical", 6, 3, 41, 3),
    Sketcher.Constraint("Vertical", 10, 3, 45, 3),
    Sketcher.Constraint("Vertical", 14, 3, 49, 3),
    Sketcher.Constraint("Vertical", 18, 3, 53, 3),
    Sketcher.Constraint("Vertical", 22, 3, 57, 3),
    Sketcher.Constraint("Vertical", 26, 3, 61, 3),
    Sketcher.Constraint("Vertical", 30, 3, 65, 3),
    Sketcher.Constraint("Vertical", 34, 3, 69, 3),
    Sketcher.Constraint("Vertical", 74, 3, 77, 3),
    Sketcher.Constraint("Equal", 35, 36),
    Sketcher.Constraint("DistanceX", -1, 1, 2, 2, Q("1 in")),
    Sketcher.Constraint("Radius", 0, Q("0.1875 in")),
    Sketcher.Constraint("DistanceY", 1, 1, 1, 2, Q("6.125 in")),
    Sketcher.Constraint("DistanceX", -1, 1, 4, 2, Q("1.89 in")),
    Sketcher.Constraint("DistanceX", -1, 1, 10, 2, Q("2.03 in")),
    Sketcher.Constraint("DistanceX", -1, 1, 12, 2, Q("2.92 in")),
    Sketcher.Constraint("DistanceX", -1, 1, 18, 2, Q("3.06 in")),
    Sketcher.Constraint("DistanceX", -1, 1, 20, 2, Q("3.95 in")),
    Sketcher.Constraint("DistanceX", -1, 1, 26, 2, Q("4.09 in")),
    Sketcher.Constraint("DistanceX", -1, 1, 28, 2, Q("4.98 in")),
    Sketcher.Constraint("DistanceX", -1, 1, 34, 2, Q("5.12 in")),
    Sketcher.Constraint("DistanceX", -1, 1, 72, 2, Q("6.01 in")),
    Sketcher.Constraint("DistanceY", -1, 1, 0, 3, Q("0.6875 in")),
    Sketcher.Constraint("DistanceY", -1, 1, 37, 3, Q("14.3125 in")),
])
pocket1 = doc.addObject("PartDesign::Pocket", "Pocket")
body.addObject(pocket1)
pocket1.Profile = sketch3
pocket1.Type = "ThroughAll"

# Sketch on XY plane
sketch4 = doc.addObject("Sketcher::SketchObject", "Sketch003")
body.addObject(sketch4)
sketch4.AttachmentSupport = (doc.XY_Plane, [""])
sketch4.MapMode = "FlatFace"
sketch4.AttachmentOffset = App.Placement(Vector(0, 0, 0.125 * 25.4), App.Rotation())
sketch4.addGeometry([
    Part.Circle(Vector(6.3, 377.8, 0), Vector(0, 0, 1), 1.8),
    Part.Circle(Vector(6.3, 187.3, 0), Vector(0, 0, 1), 1.8),
    Part.Circle(Vector(89.1, 377.8, 0), Vector(0, 0, 1), 1.8),
    Part.Circle(Vector(170.1, 190.5, 0), Vector(0, 0, 1), 1.8),
], False)
sketch4.addConstraint([
    Sketcher.Constraint("Equal", 0, 1),
    Sketcher.Constraint("Equal", 1, 2),
    Sketcher.Constraint("Equal", 2, 3),
    Sketcher.Constraint("Horizontal", 0, 3, 2, 3),
    Sketcher.Constraint("Vertical", 0, 3, 1, 3),
    Sketcher.Constraint("Diameter", 0, Q("0.14 in")),
    Sketcher.Constraint("DistanceY", -1, 1, 1, 3, Q("7.375 in")),
    Sketcher.Constraint("DistanceX", 0, 3, 2, 3, Q("3.258 in")),
    Sketcher.Constraint("DistanceY", 3, 3, 2, 3, Q("7.375 in")),
    Sketcher.Constraint("DistanceY", -1, 1, 3, 3, Q("7.5 in")),
    Sketcher.Constraint("DistanceX", -1, 1, 0, 3, Q("0.25 in")),
    Sketcher.Constraint("DistanceX", -1, 1, 3, 3, Q("6.696 in")),
])
pocket2 = doc.addObject("PartDesign::Pocket", "Pocket001")
body.addObject(pocket2)
pocket2.Profile = sketch4
pocket2.Length = Q("0.14 in")

doc.recompute()
